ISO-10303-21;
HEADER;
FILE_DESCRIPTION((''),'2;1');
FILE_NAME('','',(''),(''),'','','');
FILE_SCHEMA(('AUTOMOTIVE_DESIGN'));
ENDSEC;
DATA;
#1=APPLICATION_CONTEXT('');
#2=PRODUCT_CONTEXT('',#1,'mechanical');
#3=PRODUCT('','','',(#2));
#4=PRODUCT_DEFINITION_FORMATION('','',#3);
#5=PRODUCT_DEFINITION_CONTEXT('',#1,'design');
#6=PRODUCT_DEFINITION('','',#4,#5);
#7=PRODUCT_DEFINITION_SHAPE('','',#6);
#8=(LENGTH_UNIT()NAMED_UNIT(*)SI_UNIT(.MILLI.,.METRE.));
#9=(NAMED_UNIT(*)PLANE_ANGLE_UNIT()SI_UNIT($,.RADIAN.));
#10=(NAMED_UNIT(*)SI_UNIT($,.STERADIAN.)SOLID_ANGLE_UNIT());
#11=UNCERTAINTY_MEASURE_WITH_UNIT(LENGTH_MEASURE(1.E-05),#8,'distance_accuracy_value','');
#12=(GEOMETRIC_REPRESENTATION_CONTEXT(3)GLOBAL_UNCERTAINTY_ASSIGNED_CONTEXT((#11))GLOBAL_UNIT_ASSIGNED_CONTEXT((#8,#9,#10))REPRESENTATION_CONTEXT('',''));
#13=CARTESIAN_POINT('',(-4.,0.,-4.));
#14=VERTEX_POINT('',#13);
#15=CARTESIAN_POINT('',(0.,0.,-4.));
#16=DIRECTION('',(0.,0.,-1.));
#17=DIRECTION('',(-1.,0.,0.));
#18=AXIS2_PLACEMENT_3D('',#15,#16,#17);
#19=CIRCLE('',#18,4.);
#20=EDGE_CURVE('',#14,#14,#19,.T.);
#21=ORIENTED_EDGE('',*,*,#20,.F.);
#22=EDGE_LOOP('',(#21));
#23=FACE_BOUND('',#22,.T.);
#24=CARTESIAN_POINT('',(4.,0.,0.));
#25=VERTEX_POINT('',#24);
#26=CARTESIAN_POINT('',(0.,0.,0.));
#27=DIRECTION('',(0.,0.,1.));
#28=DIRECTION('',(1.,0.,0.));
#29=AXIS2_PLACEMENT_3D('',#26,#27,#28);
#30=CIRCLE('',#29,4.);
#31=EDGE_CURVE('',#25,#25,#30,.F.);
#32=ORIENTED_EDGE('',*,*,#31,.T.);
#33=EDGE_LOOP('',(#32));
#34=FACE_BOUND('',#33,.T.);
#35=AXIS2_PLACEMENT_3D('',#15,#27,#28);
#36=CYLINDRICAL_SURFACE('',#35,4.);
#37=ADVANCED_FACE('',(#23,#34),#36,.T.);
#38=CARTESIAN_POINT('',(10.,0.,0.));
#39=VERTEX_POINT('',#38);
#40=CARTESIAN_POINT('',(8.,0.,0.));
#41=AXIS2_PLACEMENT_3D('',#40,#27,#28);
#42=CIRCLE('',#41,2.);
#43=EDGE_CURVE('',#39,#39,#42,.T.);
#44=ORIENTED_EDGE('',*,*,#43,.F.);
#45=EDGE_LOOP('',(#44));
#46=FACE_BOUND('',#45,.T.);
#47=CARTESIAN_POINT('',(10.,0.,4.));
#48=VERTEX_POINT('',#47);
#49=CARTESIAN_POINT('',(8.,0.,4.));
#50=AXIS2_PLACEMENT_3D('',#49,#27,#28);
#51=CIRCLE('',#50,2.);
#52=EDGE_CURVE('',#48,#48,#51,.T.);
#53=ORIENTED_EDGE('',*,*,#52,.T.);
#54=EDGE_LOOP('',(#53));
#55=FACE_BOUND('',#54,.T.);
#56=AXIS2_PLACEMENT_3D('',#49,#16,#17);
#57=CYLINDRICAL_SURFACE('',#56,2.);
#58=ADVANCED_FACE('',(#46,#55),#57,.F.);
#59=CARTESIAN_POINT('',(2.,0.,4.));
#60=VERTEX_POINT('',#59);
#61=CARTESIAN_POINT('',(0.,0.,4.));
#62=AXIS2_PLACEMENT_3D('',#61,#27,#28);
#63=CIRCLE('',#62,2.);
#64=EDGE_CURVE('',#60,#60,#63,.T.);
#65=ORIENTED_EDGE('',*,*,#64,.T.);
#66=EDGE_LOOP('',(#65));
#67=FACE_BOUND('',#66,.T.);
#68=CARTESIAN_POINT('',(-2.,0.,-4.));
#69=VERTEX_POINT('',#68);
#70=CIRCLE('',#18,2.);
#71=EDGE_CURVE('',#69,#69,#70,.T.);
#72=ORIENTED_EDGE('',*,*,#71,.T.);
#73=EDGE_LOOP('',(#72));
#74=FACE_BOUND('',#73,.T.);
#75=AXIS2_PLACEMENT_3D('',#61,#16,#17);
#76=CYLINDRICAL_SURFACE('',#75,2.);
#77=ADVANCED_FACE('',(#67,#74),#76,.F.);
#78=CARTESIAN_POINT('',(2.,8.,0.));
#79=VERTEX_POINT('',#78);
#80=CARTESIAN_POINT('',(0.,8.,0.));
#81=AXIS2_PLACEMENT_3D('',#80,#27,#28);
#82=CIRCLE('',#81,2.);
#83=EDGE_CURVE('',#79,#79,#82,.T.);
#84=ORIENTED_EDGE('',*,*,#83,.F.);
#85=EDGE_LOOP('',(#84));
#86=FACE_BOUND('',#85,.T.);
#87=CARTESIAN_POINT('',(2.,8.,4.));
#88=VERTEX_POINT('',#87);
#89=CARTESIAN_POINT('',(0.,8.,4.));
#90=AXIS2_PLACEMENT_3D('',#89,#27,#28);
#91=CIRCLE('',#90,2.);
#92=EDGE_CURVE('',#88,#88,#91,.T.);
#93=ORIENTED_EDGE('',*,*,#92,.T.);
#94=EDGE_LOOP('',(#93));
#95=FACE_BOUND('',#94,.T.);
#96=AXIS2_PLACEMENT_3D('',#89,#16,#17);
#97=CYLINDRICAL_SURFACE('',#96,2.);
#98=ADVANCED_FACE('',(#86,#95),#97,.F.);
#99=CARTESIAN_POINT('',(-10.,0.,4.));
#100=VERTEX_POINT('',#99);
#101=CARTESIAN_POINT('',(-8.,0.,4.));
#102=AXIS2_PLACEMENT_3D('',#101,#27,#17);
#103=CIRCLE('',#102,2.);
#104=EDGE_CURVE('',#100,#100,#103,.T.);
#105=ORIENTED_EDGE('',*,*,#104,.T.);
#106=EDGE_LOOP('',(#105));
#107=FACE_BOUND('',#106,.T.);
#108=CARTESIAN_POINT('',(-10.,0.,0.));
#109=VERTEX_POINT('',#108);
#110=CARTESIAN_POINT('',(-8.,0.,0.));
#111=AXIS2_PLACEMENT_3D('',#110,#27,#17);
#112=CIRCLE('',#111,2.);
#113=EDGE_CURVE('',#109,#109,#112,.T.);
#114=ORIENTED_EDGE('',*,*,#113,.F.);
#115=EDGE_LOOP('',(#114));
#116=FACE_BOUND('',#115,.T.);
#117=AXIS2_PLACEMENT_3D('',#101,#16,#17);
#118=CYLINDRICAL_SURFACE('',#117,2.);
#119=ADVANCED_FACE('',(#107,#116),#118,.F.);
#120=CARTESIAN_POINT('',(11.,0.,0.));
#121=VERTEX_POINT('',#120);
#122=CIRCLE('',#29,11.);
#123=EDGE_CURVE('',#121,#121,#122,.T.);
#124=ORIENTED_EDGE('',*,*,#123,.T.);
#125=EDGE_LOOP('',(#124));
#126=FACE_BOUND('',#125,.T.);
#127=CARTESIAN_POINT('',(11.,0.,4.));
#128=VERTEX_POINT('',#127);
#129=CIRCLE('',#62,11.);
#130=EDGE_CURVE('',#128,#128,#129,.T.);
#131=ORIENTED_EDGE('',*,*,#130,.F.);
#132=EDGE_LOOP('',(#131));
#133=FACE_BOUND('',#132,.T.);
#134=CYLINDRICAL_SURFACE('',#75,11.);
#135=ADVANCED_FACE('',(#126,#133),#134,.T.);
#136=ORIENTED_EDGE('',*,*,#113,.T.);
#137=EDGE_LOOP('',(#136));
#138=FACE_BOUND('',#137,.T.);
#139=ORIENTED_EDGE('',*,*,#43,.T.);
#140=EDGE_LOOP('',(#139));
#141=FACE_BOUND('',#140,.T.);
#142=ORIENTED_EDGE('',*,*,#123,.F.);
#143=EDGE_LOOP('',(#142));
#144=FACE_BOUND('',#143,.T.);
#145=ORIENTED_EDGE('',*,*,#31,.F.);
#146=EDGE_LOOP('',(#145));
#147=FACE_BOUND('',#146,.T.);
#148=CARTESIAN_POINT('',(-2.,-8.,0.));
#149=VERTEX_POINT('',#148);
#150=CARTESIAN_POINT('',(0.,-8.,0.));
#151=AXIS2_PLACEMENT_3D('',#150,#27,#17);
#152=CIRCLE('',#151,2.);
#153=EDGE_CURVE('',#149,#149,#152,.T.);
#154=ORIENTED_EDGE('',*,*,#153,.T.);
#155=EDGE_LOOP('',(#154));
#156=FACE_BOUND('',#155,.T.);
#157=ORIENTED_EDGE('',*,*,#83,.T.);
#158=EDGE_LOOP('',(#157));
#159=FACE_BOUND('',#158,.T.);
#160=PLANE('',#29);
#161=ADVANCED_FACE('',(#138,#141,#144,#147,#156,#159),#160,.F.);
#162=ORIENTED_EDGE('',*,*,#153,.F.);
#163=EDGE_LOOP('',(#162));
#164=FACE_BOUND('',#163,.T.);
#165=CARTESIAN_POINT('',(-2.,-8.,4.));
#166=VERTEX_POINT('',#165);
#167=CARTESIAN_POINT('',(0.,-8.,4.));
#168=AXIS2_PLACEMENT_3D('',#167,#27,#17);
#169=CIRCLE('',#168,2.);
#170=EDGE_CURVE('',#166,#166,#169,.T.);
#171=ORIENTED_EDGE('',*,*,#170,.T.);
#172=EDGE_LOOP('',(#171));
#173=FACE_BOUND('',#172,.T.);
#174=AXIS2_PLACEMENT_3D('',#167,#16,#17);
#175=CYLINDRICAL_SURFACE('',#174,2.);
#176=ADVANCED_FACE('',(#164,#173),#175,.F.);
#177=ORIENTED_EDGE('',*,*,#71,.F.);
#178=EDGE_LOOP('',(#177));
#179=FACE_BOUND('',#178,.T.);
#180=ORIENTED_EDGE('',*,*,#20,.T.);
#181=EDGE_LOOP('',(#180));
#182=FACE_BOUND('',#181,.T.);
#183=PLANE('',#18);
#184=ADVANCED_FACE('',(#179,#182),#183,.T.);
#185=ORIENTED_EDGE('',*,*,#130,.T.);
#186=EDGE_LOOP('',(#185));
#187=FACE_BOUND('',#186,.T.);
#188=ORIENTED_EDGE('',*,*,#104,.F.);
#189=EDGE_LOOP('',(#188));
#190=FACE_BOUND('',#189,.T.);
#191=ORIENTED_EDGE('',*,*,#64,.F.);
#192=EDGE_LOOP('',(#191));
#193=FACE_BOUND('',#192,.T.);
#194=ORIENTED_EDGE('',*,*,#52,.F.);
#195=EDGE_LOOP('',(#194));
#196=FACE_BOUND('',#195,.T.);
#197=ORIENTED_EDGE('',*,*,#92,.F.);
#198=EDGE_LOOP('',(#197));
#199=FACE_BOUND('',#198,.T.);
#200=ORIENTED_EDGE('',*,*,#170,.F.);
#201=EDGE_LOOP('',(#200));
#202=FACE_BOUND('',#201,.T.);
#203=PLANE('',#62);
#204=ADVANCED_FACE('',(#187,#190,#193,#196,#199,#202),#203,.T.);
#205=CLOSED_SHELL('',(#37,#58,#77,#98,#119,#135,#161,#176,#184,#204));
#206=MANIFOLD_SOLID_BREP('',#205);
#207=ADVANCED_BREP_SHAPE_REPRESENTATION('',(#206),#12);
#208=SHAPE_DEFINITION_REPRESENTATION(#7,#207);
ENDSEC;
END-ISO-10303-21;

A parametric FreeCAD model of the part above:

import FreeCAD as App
import Part
import Sketcher

V = App.Vector
Q = App.Units.Quantity

doc = App.newDocument("Part")
body = doc.addObject("PartDesign::Body", "Body")

# Sketch on XY plane
sketch1 = body.newObject("Sketcher::SketchObject", "Sketch")
sketch1.AttachmentSupport = (doc.getObject("XY_Plane"), [""])
sketch1.MapMode = "FlatFace"
sketch1.addGeometry([
    Part.Circle(V(0, 0, 0), V(0, 0, 1), 11),  # 0
    Part.Circle(V(0, -8, 0), V(0, 0, 1), 2),  # 1
    Part.Circle(V(-8, 0, 0), V(0, 0, 1), 2),  # 2
    Part.Circle(V(0, 0, 0), V(0, 0, 1), 2),  # 3
    Part.Circle(V(8, 0, 0), V(0, 0, 1), 2),  # 4
    Part.Circle(V(0, 8, 0), V(0, 0, 1), 2),  # 5
], False)
sketch1.addConstraint([
    Sketcher.Constraint("Coincident", 0, 3, -1, 1),
    Sketcher.Constraint("Coincident", 3, 3, -1, 1),
    Sketcher.Constraint("Equal", 1, 2),
    Sketcher.Constraint("Equal", 2, 3),
    Sketcher.Constraint("Equal", 3, 4),
    Sketcher.Constraint("Equal", 4, 5),
    Sketcher.Constraint("Symmetric", 2, 3, 4, 3, -1, 1),
    Sketcher.Constraint("Symmetric", 1, 3, 5, 3, -1, 1),
    Sketcher.Constraint("PointOnObject", 1, 3, -2),
    Sketcher.Constraint("PointOnObject", 2, 3, -1),
    Sketcher.Constraint("Diameter", 0, Q("22 mm")),
    Sketcher.Constraint("Diameter", 1, Q("4 mm")),
    Sketcher.Constraint("DistanceY", 1, 3, -1, 1, Q("8 mm")),
    Sketcher.Constraint("DistanceX", 2, 3, -1, 1, Q("8 mm")),
])
pad1 = body.newObject("PartDesign::Pad", "Pad")
pad1.Profile = sketch1
pad1.Length = 4

# Sketch on XY plane
sketch2 = body.newObject("Sketcher::SketchObject", "Sketch001")
sketch2.AttachmentSupport = (doc.getObject("XY_Plane"), [""])
sketch2.MapMode = "FlatFace"
sketch2.AttachmentOffset = App.Placement(V(0, 0, -4), App.Rotation())
sketch2.addGeometry([
    Part.Circle(V(0, 0, 0), V(0, 0, 1), 4),
    Part.Circle(V(0, 0, 0), V(0, 0, 1), 2),
], False)
sketch2.addConstraint([
    Sketcher.Constraint("Coincident", 0, 3, -1, 1),
    Sketcher.Constraint("Coincident", 1, 3, -1, 1),
    Sketcher.Constraint("Diameter", 0, Q("8 mm")),
    Sketcher.Constraint("Diameter", 1, Q("4 mm")),
])
pad2 = body.newObject("PartDesign::Pad", "Pad001")
pad2.Profile = sketch2
pad2.Length = 4

doc.recompute()
